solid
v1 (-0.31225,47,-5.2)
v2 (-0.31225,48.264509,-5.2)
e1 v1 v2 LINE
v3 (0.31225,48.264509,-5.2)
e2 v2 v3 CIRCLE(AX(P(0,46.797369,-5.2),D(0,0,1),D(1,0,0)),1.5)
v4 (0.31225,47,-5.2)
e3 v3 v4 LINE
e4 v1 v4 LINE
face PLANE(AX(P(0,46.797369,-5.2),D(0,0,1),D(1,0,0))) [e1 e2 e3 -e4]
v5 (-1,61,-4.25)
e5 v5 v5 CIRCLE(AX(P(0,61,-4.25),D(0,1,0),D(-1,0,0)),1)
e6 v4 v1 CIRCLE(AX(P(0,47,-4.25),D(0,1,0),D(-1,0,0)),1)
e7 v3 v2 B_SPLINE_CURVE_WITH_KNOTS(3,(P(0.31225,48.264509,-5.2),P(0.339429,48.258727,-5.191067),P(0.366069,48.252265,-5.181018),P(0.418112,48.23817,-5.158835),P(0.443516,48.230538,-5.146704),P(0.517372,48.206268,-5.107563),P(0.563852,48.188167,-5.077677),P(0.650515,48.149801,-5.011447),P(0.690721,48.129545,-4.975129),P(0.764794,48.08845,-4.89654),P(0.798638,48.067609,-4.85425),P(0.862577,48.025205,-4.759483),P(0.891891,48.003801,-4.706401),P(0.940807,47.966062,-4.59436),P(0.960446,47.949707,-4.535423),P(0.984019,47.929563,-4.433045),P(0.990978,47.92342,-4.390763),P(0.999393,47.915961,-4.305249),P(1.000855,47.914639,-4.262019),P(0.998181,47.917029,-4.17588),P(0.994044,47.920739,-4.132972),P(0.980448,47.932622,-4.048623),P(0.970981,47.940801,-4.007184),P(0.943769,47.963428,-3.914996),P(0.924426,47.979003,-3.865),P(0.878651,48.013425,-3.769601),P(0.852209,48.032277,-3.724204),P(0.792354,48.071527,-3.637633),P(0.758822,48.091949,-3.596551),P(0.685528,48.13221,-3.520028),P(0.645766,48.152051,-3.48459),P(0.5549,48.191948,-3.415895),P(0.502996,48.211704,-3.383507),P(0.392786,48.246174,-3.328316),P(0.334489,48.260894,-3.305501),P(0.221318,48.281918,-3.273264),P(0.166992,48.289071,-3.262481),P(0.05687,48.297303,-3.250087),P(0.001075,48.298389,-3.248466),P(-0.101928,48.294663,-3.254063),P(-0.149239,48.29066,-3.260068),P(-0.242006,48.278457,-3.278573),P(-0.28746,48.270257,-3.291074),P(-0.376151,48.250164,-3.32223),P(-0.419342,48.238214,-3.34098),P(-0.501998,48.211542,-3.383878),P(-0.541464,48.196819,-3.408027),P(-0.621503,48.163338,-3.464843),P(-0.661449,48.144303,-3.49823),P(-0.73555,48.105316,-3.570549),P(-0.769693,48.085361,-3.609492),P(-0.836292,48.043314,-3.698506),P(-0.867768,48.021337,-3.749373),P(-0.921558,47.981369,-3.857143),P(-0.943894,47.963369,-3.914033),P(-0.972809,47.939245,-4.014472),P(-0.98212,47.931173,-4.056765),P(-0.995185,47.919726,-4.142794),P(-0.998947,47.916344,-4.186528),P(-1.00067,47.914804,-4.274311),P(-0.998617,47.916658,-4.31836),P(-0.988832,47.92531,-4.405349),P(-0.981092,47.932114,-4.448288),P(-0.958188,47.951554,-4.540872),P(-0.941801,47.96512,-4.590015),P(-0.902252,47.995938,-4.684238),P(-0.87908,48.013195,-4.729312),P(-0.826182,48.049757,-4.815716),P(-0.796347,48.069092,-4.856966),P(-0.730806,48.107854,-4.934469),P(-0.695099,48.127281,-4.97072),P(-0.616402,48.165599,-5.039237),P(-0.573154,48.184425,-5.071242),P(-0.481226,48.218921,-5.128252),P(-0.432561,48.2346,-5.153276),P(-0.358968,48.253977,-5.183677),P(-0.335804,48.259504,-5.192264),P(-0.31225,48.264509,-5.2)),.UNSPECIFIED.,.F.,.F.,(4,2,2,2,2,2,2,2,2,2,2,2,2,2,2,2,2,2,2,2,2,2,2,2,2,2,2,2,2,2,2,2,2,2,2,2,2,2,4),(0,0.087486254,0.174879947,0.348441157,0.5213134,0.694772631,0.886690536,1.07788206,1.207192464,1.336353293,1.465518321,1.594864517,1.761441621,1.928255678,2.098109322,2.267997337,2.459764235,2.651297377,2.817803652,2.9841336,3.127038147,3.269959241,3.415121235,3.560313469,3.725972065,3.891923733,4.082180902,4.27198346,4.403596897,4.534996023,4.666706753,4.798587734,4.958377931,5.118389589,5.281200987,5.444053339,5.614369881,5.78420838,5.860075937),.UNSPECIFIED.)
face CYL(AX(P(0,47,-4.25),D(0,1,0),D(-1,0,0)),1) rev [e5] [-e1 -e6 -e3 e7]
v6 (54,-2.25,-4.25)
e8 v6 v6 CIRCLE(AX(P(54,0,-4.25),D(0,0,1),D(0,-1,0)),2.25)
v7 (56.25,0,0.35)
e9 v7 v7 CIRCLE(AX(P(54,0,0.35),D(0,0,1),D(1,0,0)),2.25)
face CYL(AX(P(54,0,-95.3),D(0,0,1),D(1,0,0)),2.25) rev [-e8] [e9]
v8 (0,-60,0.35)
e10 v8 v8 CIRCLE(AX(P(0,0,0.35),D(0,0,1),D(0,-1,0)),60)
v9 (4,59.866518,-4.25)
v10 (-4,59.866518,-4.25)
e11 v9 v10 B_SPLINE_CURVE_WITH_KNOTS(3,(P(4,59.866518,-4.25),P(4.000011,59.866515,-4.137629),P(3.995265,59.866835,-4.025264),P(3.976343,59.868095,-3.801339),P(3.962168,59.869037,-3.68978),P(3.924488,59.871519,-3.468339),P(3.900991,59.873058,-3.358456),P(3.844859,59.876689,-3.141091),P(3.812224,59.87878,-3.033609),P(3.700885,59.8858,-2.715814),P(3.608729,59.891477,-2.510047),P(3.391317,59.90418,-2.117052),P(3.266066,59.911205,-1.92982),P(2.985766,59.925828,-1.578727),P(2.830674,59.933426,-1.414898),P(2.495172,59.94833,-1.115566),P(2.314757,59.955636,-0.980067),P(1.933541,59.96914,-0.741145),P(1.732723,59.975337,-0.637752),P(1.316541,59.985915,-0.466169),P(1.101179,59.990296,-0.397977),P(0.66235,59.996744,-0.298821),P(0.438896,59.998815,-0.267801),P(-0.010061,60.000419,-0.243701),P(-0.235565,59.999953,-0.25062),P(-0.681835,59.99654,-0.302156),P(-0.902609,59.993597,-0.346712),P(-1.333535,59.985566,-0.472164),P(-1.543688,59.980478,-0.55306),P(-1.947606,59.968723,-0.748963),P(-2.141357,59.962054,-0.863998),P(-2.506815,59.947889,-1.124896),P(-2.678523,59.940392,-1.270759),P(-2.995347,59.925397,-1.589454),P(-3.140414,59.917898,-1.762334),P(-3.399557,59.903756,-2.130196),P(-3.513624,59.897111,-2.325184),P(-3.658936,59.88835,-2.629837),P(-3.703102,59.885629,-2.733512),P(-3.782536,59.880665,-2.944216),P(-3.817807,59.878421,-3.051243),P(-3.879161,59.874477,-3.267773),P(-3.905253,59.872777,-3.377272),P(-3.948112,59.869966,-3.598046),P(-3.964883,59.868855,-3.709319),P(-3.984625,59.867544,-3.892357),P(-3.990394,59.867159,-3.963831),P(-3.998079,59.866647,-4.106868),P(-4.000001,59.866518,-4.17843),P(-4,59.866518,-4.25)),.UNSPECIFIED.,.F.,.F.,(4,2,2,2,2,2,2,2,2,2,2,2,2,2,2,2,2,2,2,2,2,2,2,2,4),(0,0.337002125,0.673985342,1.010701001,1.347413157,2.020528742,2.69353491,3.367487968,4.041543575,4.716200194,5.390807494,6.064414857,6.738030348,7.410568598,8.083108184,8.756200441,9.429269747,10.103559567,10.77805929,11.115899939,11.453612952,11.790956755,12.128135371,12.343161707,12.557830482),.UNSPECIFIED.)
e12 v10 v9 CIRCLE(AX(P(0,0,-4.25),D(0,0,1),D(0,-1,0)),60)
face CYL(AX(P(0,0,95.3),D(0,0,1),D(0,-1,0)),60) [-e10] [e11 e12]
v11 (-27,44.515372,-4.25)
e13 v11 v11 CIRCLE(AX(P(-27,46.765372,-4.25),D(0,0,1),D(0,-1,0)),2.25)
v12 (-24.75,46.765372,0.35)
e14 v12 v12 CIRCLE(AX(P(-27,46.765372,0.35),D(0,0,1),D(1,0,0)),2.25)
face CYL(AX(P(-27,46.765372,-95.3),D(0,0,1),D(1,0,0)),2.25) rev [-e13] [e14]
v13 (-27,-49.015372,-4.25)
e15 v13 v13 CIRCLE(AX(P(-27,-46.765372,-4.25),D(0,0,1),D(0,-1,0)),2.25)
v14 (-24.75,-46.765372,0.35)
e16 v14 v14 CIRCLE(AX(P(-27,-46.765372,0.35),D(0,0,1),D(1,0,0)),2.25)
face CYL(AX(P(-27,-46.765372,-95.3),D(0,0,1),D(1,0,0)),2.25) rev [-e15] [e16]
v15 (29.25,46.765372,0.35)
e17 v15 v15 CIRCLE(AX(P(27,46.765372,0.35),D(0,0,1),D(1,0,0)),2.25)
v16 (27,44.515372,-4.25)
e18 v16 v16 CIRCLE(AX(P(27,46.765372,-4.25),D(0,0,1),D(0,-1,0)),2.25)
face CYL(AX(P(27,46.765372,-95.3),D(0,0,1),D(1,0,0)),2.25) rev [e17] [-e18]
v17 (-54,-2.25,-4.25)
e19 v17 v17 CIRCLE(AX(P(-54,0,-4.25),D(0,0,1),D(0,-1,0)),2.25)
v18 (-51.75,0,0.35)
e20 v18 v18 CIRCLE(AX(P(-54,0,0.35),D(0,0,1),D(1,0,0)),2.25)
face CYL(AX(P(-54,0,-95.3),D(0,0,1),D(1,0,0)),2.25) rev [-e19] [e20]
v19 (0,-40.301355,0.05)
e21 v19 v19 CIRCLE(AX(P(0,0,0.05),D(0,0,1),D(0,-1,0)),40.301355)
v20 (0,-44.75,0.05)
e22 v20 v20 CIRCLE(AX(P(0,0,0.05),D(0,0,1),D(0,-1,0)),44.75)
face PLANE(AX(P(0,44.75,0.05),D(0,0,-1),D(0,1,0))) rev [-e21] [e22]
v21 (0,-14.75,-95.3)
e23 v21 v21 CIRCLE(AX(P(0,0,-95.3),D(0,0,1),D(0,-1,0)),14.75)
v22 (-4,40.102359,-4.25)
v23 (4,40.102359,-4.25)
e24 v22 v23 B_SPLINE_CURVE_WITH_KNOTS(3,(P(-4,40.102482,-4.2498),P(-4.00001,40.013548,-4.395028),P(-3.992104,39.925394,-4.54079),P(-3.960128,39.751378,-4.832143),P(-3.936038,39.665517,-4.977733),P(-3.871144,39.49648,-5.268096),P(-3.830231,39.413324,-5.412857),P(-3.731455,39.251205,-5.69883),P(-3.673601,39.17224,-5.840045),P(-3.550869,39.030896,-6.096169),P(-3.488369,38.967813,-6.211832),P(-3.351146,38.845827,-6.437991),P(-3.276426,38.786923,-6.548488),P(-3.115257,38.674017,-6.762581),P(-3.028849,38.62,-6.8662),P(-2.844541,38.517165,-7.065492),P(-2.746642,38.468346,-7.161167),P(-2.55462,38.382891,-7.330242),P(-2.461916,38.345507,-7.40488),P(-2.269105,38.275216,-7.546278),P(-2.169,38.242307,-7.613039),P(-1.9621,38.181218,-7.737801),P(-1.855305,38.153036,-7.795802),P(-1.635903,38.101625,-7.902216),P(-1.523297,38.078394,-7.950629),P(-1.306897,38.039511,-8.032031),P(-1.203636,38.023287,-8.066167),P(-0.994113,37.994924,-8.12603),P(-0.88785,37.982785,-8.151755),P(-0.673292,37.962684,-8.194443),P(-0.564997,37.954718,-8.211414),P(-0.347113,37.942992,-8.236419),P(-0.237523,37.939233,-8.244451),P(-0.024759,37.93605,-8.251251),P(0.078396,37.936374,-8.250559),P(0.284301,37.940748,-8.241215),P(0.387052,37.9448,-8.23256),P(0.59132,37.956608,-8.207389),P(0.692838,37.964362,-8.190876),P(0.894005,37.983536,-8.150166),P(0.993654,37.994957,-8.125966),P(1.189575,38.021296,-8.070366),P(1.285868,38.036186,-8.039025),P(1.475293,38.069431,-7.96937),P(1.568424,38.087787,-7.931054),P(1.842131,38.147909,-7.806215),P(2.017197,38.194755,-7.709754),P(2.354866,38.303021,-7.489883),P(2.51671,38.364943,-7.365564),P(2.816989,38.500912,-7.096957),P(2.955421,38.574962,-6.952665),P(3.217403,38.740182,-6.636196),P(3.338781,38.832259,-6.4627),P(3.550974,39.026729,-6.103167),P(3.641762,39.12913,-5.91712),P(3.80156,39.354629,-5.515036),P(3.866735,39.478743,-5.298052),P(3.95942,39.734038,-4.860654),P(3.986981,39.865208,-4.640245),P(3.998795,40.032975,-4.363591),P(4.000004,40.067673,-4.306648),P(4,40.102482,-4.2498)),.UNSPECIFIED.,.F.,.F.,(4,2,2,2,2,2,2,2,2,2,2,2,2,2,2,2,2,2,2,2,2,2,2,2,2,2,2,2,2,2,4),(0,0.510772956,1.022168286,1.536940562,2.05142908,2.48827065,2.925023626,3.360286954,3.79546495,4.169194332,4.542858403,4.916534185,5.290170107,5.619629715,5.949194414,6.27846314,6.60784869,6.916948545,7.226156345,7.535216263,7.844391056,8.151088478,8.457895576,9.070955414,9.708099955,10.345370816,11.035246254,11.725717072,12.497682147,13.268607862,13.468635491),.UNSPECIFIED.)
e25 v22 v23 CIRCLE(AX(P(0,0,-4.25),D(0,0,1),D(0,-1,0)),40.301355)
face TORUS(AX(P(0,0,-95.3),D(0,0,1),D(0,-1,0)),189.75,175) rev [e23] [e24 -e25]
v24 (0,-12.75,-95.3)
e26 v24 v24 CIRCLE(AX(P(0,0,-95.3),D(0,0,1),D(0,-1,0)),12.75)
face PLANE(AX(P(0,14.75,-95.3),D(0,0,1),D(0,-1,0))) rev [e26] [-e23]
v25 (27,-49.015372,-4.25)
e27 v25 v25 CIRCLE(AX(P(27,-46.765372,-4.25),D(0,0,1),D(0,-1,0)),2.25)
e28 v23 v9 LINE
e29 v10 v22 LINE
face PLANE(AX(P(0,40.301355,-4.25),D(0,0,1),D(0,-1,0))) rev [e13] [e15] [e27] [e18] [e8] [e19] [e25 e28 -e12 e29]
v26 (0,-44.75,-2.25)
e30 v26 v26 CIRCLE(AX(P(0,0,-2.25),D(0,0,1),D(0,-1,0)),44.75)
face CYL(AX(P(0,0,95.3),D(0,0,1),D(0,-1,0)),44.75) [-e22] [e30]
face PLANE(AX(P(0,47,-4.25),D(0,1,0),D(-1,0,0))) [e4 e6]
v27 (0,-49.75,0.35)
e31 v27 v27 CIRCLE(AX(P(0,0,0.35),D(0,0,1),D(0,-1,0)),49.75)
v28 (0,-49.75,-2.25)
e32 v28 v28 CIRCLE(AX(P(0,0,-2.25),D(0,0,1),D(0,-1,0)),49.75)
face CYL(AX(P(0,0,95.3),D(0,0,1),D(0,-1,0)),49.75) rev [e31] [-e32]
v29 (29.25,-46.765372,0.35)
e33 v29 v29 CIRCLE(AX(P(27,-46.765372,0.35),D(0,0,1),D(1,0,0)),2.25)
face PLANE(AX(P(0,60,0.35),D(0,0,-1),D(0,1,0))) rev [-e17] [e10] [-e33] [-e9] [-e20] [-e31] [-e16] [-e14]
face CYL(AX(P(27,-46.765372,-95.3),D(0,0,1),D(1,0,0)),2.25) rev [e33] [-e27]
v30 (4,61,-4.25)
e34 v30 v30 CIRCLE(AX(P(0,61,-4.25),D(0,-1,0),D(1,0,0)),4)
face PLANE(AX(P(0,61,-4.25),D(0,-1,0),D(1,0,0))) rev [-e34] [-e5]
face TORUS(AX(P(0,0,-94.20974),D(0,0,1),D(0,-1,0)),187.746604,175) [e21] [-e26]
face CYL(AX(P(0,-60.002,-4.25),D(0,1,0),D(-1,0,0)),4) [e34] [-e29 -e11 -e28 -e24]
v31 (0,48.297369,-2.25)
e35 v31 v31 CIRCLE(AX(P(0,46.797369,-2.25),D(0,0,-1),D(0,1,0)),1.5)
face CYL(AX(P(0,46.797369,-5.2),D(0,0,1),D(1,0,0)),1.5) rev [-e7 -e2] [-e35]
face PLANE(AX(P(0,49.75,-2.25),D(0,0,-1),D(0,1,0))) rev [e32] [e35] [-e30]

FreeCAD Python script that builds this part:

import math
import FreeCAD as App
import Part
import Sketcher
Q = App.Units.Quantity

doc = App.newDocument("Part")
params = doc.addObject("Spreadsheet::Sheet", "Params")
for row, (alias, value) in enumerate([
    ("sketch1_radius", "175 mm"),
    ("sketch1_width", "2 mm"),
    ("sketch1_width2", "5 mm"),
    ("sketch1_height", "4.6 mm"),
    ("sketch1_height2", "2.6 mm"),
    ("revolution_angle", "360 deg"),
    ("sketch2_diameter", "8 mm"),
    ("sketch3_diameter", "2 mm"),
    ("pocket1_length", "14 mm"),
    ("sketch4_diameter", "3 mm"),
    ("pocket2_length", "5.2 mm"),
    ("sketch5_diameter", "4.5 mm"),
], start=1):
    params.set(f"A{row}", alias)
    params.set(f"B{row}", "=" + value)
    params.setAlias(f"B{row}", alias)

body = doc.addObject("PartDesign::Body", "Body")

sketch1 = doc.addObject("Sketcher::SketchObject", "Sketch")
body.addObject(sketch1)
sketch1.AttachmentSupport = (doc.YZ_Plane, [""])
sketch1.MapMode = "FlatFace"
sketch1.addGeometry([
    Part.LineSegment(App.Vector(12.8, -95.3, 0), App.Vector(14.8, -95.3, 0)),
    Part.ArcOfCircle(Part.Circle(App.Vector(189.7, -95.3, 0), App.Vector(0, 0, 1), 175), math.radians(149), math.radians(180)),
    Part.LineSegment(App.Vector(40.3, -4.2, 0), App.Vector(60, -4.2, 0)),
    Part.LineSegment(App.Vector(60, -4.2, 0), App.Vector(60, 0.3, 0)),
    Part.LineSegment(App.Vector(60, 0.3, 0), App.Vector(49.8, 0.3, 0)),
    Part.LineSegment(App.Vector(49.8, 0.3, 0), App.Vector(49.8, -2.2, 0)),
    Part.LineSegment(App.Vector(49.8, -2.2, 0), App.Vector(44.8, -2.2, 0)),
    Part.LineSegment(App.Vector(44.8, -2.2, 0), App.Vector(44.8, 0.1, 0)),
    Part.LineSegment(App.Vector(44.8, 0.1, 0), App.Vector(40.3, 0.1, 0)),
    Part.ArcOfCircle(Part.Circle(App.Vector(187.7, -94.2, 0), App.Vector(0, 0, 1), 175), math.radians(147), math.radians(180)),
], False)
sketch1.addConstraint([
    Sketcher.Constraint("Coincident", 0, 2, 1, 2),
    Sketcher.Constraint("Coincident", 1, 1, 2, 1),
    Sketcher.Constraint("Coincident", 2, 2, 3, 1),
    Sketcher.Constraint("Coincident", 3, 2, 4, 1),
    Sketcher.Constraint("Coincident", 4, 2, 5, 1),
    Sketcher.Constraint("Coincident", 5, 2, 6, 1),
    Sketcher.Constraint("Coincident", 6, 2, 7, 1),
    Sketcher.Constraint("Coincident", 7, 2, 8, 1),
    Sketcher.Constraint("Coincident", 8, 2, 9, 1),
    Sketcher.Constraint("Coincident", 9, 2, 0, 1),
    Sketcher.Constraint("Horizontal", 0),
    Sketcher.Constraint("Horizontal", 2),
    Sketcher.Constraint("Vertical", 3),
    Sketcher.Constraint("Horizontal", 4),
    Sketcher.Constraint("Vertical", 5),
    Sketcher.Constraint("Horizontal", 6),
    Sketcher.Constraint("Vertical", 7),
    Sketcher.Constraint("Horizontal", 8),
    Sketcher.Constraint("Equal", 1, 9),
    Sketcher.Constraint("Horizontal", 1, 3, 0, 2),
    Sketcher.Constraint("Vertical", 1, 1, 8, 2),
    Sketcher.Constraint("Radius", 1, Q("175 mm")),
    Sketcher.Constraint("DistanceX", 0, 1, 0, 2, Q("2 mm")),
    Sketcher.Constraint("DistanceX", 6, 2, 6, 1, Q("5 mm")),
    Sketcher.Constraint("DistanceY", 3, 1, 3, 2, Q("4.6 mm")),
    Sketcher.Constraint("DistanceY", 5, 2, 5, 1, Q("2.6 mm")),
    Sketcher.Constraint("DistanceY", 7, 1, 7, 2, Q("2.3 mm")),
    Sketcher.Constraint("DistanceX", -1, 1, 2, 2, Q("60 mm")),
    Sketcher.Constraint("DistanceX", 0, 2, 4, 2, Q("35 mm")),
    Sketcher.Constraint("DistanceX", 4, 2, 4, 1, Q("10.25 mm")),
    Sketcher.Constraint("DistanceY", 1, 3, -1, 1, Q("95.3 mm")),
    Sketcher.Constraint("DistanceY", 2, 2, -1, 1, Q("4.25 mm")),
])
sketch1.setExpression("Constraints[21]", "Params.sketch1_radius")
sketch1.setExpression("Constraints[22]", "Params.sketch1_width")
sketch1.setExpression("Constraints[23]", "Params.sketch1_width2")
sketch1.setExpression("Constraints[24]", "Params.sketch1_height")
sketch1.setExpression("Constraints[25]", "Params.sketch1_height2")
revolution = doc.addObject("PartDesign::Revolution", "Revolution")
body.addObject(revolution)
revolution.Profile = sketch1
revolution.ReferenceAxis = (sketch1, ["V_Axis"])
revolution.setExpression("Angle", "Params.revolution_angle")

sketch2 = doc.addObject("Sketcher::SketchObject", "Sketch001")
body.addObject(sketch2)
sketch2.AttachmentSupport = (doc.XZ_Plane, [""])
sketch2.MapMode = "FlatFace"
sketch2.AttachmentOffset = App.Placement(App.Vector(0, 0, -61), App.Rotation())
sketch2.addGeometry(Part.Circle(App.Vector(0, -4.2, 0), App.Vector(0, 0, 1), 4), False)
sketch2.addConstraint([
    Sketcher.Constraint("PointOnObject", 0, 3, -2),
    Sketcher.Constraint("Diameter", 0, Q("8 mm")),
    Sketcher.Constraint("DistanceY", 0, 3, -1, 1, Q("4.25 mm")),
])
sketch2.setExpression("Constraints[1]", "Params.sketch2_diameter")
pad1 = doc.addObject("PartDesign::Pad", "Pad")
body.addObject(pad1)
pad1.Profile = sketch2
pad1.Type = "UpToFirst"

sketch3 = doc.addObject("Sketcher::SketchObject", "Sketch002")
body.addObject(sketch3)
sketch3.AttachmentSupport = (doc.XZ_Plane, [""])
sketch3.MapMode = "FlatFace"
sketch3.AttachmentOffset = App.Placement(App.Vector(0, 0, -61), App.Rotation())
sketch3.addGeometry(Part.Circle(App.Vector(0, -4.2, 0), App.Vector(0, 0, 1), 1), False)
sketch3.addConstraint([
    Sketcher.Constraint("PointOnObject", 0, 3, -2),
    Sketcher.Constraint("Diameter", 0, Q("2 mm")),
    Sketcher.Constraint("DistanceY", 0, 3, -1, 1, Q("4.25 mm")),
])
sketch3.setExpression("Constraints[1]", "Params.sketch3_diameter")
pocket1 = doc.addObject("PartDesign::Pocket", "Pocket")
body.addObject(pocket1)
pocket1.Profile = sketch3
pocket1.setExpression("Length", "Params.pocket1_length")
pocket1.Reversed = True

sketch4 = doc.addObject("Sketcher::SketchObject", "Sketch003")
body.addObject(sketch4)
sketch4.AttachmentSupport = (doc.XY_Plane, [""])
sketch4.MapMode = "FlatFace"
sketch4.addGeometry(Part.Circle(App.Vector(0, 46.8, 0), App.Vector(0, 0, 1), 1.5), False)
sketch4.addConstraint([
    Sketcher.Constraint("PointOnObject", 0, 3, -2),
    Sketcher.Constraint("Diameter", 0, Q("3 mm")),
    Sketcher.Constraint("DistanceY", -1, 1, 0, 3, Q("46.797369 mm")),
])
sketch4.setExpression("Constraints[1]", "Params.sketch4_diameter")
pocket2 = doc.addObject("PartDesign::Pocket", "Pocket001")
body.addObject(pocket2)
pocket2.Profile = sketch4
pocket2.setExpression("Length", "Params.pocket2_length")

sketch5 = doc.addObject("Sketcher::SketchObject", "Sketch004")
body.addObject(sketch5)
sketch5.AttachmentSupport = (doc.XY_Plane, [""])
sketch5.MapMode = "FlatFace"
sketch5.addGeometry([
    Part.Circle(App.Vector(54, 0, 0), App.Vector(0, 0, 1), 2.2),
    Part.Circle(App.Vector(27, -46.8, 0), App.Vector(0, 0, 1), 2.2),
    Part.Circle(App.Vector(-27, -46.8, 0), App.Vector(0, 0, 1), 2.2),
    Part.Circle(App.Vector(-54, 0, 0), App.Vector(0, 0, 1), 2.2),
    Part.Circle(App.Vector(-27, 46.8, 0), App.Vector(0, 0, 1), 2.2),
    Part.Circle(App.Vector(27, 46.8, 0), App.Vector(0, 0, 1), 2.2),
], False)
sketch5.addConstraint([
    Sketcher.Constraint("Equal", 0, 1),
    Sketcher.Constraint("Equal", 1, 2),
    Sketcher.Constraint("Equal", 2, 3),
    Sketcher.Constraint("Equal", 3, 4),
    Sketcher.Constraint("Equal", 4, 5),
    Sketcher.Constraint("Symmetric", 0, 3, 3, 3, -1, 1),
    Sketcher.Constraint("Symmetric", 1, 3, 4, 3, -1, 1),
    Sketcher.Constraint("Symmetric", 2, 3, 5, 3, -1, 1),
    Sketcher.Constraint("Symmetric", 1, 3, 2, 3, -2),
    Sketcher.Constraint("PointOnObject", 0, 3, -1),
    Sketcher.Constraint("Diameter", 0, Q("4.5 mm")),
    Sketcher.Constraint("DistanceX", -1, 1, 0, 3, Q("54 mm")),
    Sketcher.Constraint("DistanceX", -1, 1, 1, 3, Q("27 mm")),
    Sketcher.Constraint("DistanceY", 1, 3, -1, 1, Q("46.765372 mm")),
])
sketch5.setExpression("Constraints[10]", "Params.sketch5_diameter")
pocket3 = doc.addObject("PartDesign::Pocket", "Pocket002")
body.addObject(pocket3)
pocket3.Profile = sketch5
pocket3.Type = "ThroughAll"
pocket3.Midplane = True

doc.recompute()
